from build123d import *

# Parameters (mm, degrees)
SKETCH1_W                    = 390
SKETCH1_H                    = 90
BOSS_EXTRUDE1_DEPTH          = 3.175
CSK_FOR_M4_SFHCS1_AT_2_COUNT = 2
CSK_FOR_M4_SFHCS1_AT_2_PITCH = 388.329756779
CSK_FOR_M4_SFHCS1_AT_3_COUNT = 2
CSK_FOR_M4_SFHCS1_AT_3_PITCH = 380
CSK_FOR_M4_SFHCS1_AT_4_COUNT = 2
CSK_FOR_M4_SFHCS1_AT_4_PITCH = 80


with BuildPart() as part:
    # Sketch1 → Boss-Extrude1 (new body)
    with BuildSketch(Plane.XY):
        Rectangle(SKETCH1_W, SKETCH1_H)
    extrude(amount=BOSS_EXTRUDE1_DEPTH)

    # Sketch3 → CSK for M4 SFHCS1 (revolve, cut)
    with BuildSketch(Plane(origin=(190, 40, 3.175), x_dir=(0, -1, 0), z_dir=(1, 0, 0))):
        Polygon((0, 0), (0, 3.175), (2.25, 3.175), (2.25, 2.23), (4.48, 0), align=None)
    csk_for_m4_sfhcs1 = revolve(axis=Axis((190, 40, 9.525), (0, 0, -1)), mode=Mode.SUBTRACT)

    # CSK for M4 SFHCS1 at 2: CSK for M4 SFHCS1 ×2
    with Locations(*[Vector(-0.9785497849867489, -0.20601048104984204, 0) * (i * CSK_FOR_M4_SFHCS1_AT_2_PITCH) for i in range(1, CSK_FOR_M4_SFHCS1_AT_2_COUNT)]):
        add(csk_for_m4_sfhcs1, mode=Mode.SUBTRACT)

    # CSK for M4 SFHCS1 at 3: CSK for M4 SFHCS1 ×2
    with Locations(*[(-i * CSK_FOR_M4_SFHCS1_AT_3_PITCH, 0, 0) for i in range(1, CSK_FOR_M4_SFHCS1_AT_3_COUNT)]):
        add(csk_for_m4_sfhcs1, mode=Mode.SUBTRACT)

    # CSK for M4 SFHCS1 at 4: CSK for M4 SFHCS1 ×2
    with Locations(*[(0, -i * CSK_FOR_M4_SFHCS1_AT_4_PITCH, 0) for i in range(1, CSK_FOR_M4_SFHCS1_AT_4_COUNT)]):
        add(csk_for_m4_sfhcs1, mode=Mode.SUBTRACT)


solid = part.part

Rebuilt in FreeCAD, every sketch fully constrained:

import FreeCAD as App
import Part
import Sketcher
Q = App.Units.Quantity

doc = App.newDocument("Part")
params = doc.addObject("Spreadsheet::Sheet", "Params")
for row, (alias, value) in enumerate([
    ("sketch1_width", "390 mm"),
    ("sketch1_height", "90 mm"),
    ("pad1_length", "3.175 mm"),
    ("sketch2_width", "4.48 mm"),
    ("sketch2_width2", "2.25 mm"),
    ("groove_angle", "360 deg"),
    ("linearpattern_pitch", "388.329757 mm"),
    ("linearpattern2_pitch", "380 mm"),
    ("linearpattern3_pitch", "80 mm"),
], start=1):
    params.set(f"A{row}", alias)
    params.set(f"B{row}", "=" + value)
    params.setAlias(f"B{row}", alias)

body = doc.addObject("PartDesign::Body", "Body")

# Sketch on XY plane
sketch1 = body.newObject("Sketcher::SketchObject", "Sketch")
sketch1.AttachmentSupport = (doc.getObject("XY_Plane"), [""])
sketch1.MapMode = "FlatFace"
sketch1.addGeometry([
    Part.LineSegment(App.Vector(-195, 45, 0), App.Vector(-195, -45, 0)),
    Part.LineSegment(App.Vector(-195, -45, 0), App.Vector(195, -45, 0)),
    Part.LineSegment(App.Vector(195, -45, 0), App.Vector(195, 45, 0)),
    Part.LineSegment(App.Vector(195, 45, 0), App.Vector(-195, 45, 0)),
], False)
sketch1.addConstraint([
    Sketcher.Constraint("Coincident", 0, 2, 1, 1),
    Sketcher.Constraint("Coincident", 1, 2, 2, 1),
    Sketcher.Constraint("Coincident", 2, 2, 3, 1),
    Sketcher.Constraint("Coincident", 3, 2, 0, 1),
    Sketcher.Constraint("Vertical", 0),
    Sketcher.Constraint("Horizontal", 1),
    Sketcher.Constraint("Vertical", 2),
    Sketcher.Constraint("Horizontal", 3),
    Sketcher.Constraint("Symmetric", 0, 2, 2, 2, -1, 1),
    Sketcher.Constraint("DistanceX", 1, 1, 1, 2, Q("390 mm")),
    Sketcher.Constraint("DistanceY", 0, 2, 0, 1, Q("90 mm")),
])
sketch1.setExpression("Constraints[9]", "Params.sketch1_width")
sketch1.setExpression("Constraints[10]", "Params.sketch1_height")
pad1 = body.newObject("PartDesign::Pad", "Pad")
pad1.Profile = sketch1
pad1.setExpression("Length", "Params.pad1_length")

# Sketch on YZ plane
sketch2 = body.newObject("Sketcher::SketchObject", "Sketch001")
sketch2.AttachmentSupport = (doc.getObject("YZ_Plane"), [""])
sketch2.MapMode = "FlatFace"
sketch2.AttachmentOffset = App.Placement(App.Vector(0, 0, 190), App.Rotation())
sketch2.addGeometry([
    Part.LineSegment(App.Vector(40, 0, 0), App.Vector(40, 3.175, 0)),  # 0
    Part.LineSegment(App.Vector(40, 3.175, 0), App.Vector(35.52, 3.175, 0)),  # 1
    Part.LineSegment(App.Vector(35.52, 3.175, 0), App.Vector(37.75, 0.945, 0)),  # 2
    Part.LineSegment(App.Vector(37.75, 0.945, 0), App.Vector(37.75, 0, 0)),  # 3
    Part.LineSegment(App.Vector(37.75, 0, 0), App.Vector(40, 0, 0)),  # 4
], False)
sketch2.addGeometry(Part.LineSegment(App.Vector(40, 3.175, 0), App.Vector(40, 0, 0)), True)  # axis
sketch2.addConstraint([
    Sketcher.Constraint("Coincident", 0, 2, 1, 1),
    Sketcher.Constraint("Coincident", 1, 2, 2, 1),
    Sketcher.Constraint("Coincident", 2, 2, 3, 1),
    Sketcher.Constraint("Coincident", 3, 2, 4, 1),
    Sketcher.Constraint("Coincident", 4, 2, 0, 1),
    Sketcher.Constraint("Vertical", 0),
    Sketcher.Constraint("Horizontal", 1),
    Sketcher.Constraint("Vertical", 3),
    Sketcher.Constraint("Horizontal", 4),
    Sketcher.Constraint("Vertical", 5),
    Sketcher.Constraint("Coincident", 5, 1, 0, 2),
    Sketcher.Constraint("PointOnObject", 3, 2, -1),
    Sketcher.Constraint("PointOnObject", 5, 2, -1),
    Sketcher.Constraint("Angle", 2, Q("-45 deg")),
    Sketcher.Constraint("DistanceX", -1, 1, 0, 2, Q("40 mm")),
    Sketcher.Constraint("DistanceX", 1, 2, 1, 1, Q("4.48 mm")),
    Sketcher.Constraint("DistanceX", 4, 1, 4, 2, Q("2.25 mm")),
    Sketcher.Constraint("DistanceY", 0, 1, 0, 2, Q("3.175 mm")),
])
sketch2.setExpression("Constraints[15]", "Params.sketch2_width")
sketch2.setExpression("Constraints[16]", "Params.sketch2_width2")
groove = body.newObject("PartDesign::Groove", "Groove")
groove.Profile = sketch2
groove.ReferenceAxis = (sketch2, ["Axis0"])
groove.setExpression("Angle", "Params.groove_angle")
doc.recompute()

datumline = body.newObject("PartDesign::Line", "DatumLine")
datumline.Placement = App.Placement(App.Vector(0, 0, 0), App.Rotation(App.Vector(0, 0, 1), App.Vector(-0.978549785, -0.206010481, 0)))
linearpattern = body.newObject("PartDesign::LinearPattern", "LinearPattern")
linearpattern.Originals = [groove]
linearpattern.Direction = (datumline, [""])
linearpattern.Mode = "offset"
linearpattern.setExpression("Offset", "Params.linearpattern_pitch")
linearpattern.Occurrences = 2
body.Tip = linearpattern
doc.recompute()

linearpattern2 = body.newObject("PartDesign::LinearPattern", "LinearPattern001")
linearpattern2.Originals = [groove]
linearpattern2.Direction = (doc.getObject("X_Axis"), [""])
linearpattern2.Mode = "offset"
linearpattern2.setExpression("Offset", "Params.linearpattern2_pitch")
linearpattern2.Occurrences = 2
linearpattern2.Reversed = True
body.Tip = linearpattern2
doc.recompute()

linearpattern3 = body.newObject("PartDesign::LinearPattern", "LinearPattern002")
linearpattern3.Originals = [groove]
linearpattern3.Direction = (doc.getObject("Y_Axis"), [""])
linearpattern3.Mode = "offset"
linearpattern3.setExpression("Offset", "Params.linearpattern3_pitch")
linearpattern3.Occurrences = 2
linearpattern3.Reversed = True
body.Tip = linearpattern3

doc.recompute()
